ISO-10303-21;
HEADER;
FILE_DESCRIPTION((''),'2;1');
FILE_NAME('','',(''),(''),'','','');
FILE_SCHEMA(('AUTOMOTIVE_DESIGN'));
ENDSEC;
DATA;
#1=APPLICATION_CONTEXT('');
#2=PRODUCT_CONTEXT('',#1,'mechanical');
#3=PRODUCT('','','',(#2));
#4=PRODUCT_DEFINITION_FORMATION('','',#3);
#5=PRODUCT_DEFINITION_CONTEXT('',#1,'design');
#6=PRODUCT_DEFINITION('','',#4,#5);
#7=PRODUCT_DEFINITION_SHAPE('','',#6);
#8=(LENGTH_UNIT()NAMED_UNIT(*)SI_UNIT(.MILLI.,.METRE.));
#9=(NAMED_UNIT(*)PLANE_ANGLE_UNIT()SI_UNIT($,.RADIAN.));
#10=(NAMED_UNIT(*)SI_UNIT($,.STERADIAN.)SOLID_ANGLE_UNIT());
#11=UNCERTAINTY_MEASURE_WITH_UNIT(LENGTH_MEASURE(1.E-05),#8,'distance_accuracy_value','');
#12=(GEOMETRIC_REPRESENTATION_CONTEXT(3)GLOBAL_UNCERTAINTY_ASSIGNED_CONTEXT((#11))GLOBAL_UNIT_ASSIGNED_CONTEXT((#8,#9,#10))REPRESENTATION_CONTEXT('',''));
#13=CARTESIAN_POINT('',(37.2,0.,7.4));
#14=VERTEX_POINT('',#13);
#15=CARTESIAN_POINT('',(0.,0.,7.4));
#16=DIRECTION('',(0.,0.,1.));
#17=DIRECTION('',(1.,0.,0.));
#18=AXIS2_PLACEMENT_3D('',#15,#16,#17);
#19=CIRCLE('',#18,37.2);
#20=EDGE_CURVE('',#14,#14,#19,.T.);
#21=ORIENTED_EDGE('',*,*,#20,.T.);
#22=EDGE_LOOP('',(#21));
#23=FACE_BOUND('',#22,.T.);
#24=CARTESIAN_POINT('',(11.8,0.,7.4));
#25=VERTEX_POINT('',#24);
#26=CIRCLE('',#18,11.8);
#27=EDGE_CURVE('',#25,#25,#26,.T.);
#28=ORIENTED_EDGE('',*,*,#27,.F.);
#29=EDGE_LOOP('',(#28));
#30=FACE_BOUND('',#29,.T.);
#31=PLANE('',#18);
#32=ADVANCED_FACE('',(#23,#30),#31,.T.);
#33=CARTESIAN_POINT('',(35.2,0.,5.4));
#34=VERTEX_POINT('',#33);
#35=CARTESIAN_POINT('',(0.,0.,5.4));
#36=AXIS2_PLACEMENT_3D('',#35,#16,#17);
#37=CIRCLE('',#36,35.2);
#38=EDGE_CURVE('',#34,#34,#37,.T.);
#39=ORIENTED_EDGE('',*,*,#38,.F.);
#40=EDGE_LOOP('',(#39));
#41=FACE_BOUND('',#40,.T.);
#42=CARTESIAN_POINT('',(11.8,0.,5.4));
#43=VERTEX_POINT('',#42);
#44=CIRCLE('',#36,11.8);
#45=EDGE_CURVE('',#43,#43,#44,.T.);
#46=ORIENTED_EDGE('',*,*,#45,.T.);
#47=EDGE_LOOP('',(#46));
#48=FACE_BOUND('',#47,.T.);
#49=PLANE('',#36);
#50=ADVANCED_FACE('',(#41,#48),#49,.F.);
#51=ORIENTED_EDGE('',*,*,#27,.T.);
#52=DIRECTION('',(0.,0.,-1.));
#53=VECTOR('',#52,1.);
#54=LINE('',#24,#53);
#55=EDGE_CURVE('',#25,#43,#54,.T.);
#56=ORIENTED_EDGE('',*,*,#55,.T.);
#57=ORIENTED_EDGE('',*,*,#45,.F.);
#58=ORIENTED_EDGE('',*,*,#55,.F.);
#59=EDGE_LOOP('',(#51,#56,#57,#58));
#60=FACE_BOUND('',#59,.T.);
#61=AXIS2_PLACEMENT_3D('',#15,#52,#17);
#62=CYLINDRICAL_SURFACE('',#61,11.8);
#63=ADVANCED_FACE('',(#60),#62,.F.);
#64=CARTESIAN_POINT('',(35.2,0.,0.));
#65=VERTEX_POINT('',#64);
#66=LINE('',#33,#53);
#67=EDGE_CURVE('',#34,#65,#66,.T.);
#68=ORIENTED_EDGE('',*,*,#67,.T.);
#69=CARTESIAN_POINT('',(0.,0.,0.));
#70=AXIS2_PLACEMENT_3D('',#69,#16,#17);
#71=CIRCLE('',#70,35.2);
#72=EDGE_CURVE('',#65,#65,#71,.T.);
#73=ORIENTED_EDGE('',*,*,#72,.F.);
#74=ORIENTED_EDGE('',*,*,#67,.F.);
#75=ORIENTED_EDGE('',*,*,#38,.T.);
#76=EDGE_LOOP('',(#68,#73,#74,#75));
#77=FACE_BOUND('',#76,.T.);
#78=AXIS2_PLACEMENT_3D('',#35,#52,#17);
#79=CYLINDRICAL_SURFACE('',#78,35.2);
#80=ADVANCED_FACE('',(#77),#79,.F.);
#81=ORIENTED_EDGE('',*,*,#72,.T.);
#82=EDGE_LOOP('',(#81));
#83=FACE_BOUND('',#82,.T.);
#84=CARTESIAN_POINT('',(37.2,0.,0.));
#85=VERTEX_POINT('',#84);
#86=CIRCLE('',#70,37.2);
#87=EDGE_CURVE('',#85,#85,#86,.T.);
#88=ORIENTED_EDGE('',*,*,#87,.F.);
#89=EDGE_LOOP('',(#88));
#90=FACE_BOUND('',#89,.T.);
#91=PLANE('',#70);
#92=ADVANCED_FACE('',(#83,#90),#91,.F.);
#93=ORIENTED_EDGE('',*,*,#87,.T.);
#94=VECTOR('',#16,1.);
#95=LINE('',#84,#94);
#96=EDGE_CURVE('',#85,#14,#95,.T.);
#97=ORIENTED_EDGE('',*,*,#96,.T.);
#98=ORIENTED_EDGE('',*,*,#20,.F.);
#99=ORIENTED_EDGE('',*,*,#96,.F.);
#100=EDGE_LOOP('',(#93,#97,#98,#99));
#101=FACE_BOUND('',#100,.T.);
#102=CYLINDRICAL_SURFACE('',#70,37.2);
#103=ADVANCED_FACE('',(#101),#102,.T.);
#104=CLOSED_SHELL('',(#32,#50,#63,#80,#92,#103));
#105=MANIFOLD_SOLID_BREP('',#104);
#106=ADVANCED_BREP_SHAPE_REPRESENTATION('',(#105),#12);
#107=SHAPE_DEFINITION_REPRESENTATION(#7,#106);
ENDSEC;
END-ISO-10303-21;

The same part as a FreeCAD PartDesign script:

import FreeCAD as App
import Part
import Sketcher
Q = App.Units.Quantity

doc = App.newDocument("Part")
body = doc.addObject("PartDesign::Body", "Body")

# Sketch on XZ plane
sketch1 = body.newObject("Sketcher::SketchObject", "Sketch")
sketch1.AttachmentSupport = (doc.getObject("XZ_Plane"), [""])
sketch1.MapMode = "FlatFace"
sketch1.addGeometry([
    Part.LineSegment(App.Vector(11.8, 7.4, 0), App.Vector(11.8, 5.4, 0)),  # 0
    Part.LineSegment(App.Vector(11.8, 5.4, 0), App.Vector(35.2, 5.4, 0)),  # 1
    Part.LineSegment(App.Vector(35.2, 5.4, 0), App.Vector(35.2, 0, 0)),  # 2
    Part.LineSegment(App.Vector(35.2, 0, 0), App.Vector(37.2, 0, 0)),  # 3
    Part.LineSegment(App.Vector(37.2, 0, 0), App.Vector(37.2, 7.4, 0)),  # 4
    Part.LineSegment(App.Vector(37.2, 7.4, 0), App.Vector(11.8, 7.4, 0)),  # 5
], False)
sketch1.addConstraint([
    Sketcher.Constraint("Coincident", 0, 2, 1, 1),
    Sketcher.Constraint("Coincident", 1, 2, 2, 1),
    Sketcher.Constraint("Coincident", 2, 2, 3, 1),
    Sketcher.Constraint("Coincident", 3, 2, 4, 1),
    Sketcher.Constraint("Coincident", 4, 2, 5, 1),
    Sketcher.Constraint("Coincident", 5, 2, 0, 1),
    Sketcher.Constraint("Vertical", 0),
    Sketcher.Constraint("Horizontal", 1),
    Sketcher.Constraint("Vertical", 2),
    Sketcher.Constraint("Horizontal", 3),
    Sketcher.Constraint("Vertical", 4),
    Sketcher.Constraint("Horizontal", 5),
    Sketcher.Constraint("PointOnObject", 2, 2, -1),
    Sketcher.Constraint("Equal", 3, 0),
    Sketcher.Constraint("DistanceX", 3, 1, 3, 2, Q("2 mm")),
    Sketcher.Constraint("DistanceX", 1, 1, 1, 2, Q("23.4 mm")),
    Sketcher.Constraint("DistanceY", 2, 2, 2, 1, Q("5.4 mm")),
    Sketcher.Constraint("DistanceX", -1, 1, 0, 2, Q("11.8 mm")),
])
revolution = body.newObject("PartDesign::Revolution", "Revolution")
revolution.Profile = sketch1
revolution.ReferenceAxis = (sketch1, ["V_Axis"])
revolution.Angle = 360

doc.recompute()
